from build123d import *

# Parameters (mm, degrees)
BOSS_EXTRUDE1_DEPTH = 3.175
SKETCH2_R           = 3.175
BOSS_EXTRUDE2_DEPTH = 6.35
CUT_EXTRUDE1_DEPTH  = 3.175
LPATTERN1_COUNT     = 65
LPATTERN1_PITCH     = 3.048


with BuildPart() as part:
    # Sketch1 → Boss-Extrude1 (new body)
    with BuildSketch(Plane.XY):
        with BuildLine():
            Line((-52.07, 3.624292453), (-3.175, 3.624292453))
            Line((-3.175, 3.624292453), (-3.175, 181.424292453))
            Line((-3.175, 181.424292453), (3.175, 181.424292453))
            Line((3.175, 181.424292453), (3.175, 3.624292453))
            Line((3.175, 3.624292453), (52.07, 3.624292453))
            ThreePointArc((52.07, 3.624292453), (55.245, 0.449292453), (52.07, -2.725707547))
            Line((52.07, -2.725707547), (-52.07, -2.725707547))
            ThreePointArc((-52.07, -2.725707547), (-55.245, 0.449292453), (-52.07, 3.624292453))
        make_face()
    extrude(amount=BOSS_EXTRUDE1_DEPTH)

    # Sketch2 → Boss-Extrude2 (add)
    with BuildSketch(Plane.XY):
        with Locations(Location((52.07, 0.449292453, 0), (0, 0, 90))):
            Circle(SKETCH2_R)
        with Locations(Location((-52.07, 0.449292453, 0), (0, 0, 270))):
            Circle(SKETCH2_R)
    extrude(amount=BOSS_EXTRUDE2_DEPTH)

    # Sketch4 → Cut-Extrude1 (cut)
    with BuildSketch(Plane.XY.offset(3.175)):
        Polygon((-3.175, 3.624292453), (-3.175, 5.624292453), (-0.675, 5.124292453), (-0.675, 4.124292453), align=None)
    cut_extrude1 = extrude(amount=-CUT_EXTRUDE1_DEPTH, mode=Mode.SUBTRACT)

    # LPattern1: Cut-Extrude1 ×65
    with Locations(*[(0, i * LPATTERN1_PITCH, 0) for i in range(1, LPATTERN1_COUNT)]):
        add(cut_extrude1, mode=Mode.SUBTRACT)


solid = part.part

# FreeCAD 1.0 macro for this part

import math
import FreeCAD as App
import Part
import Sketcher

V = App.Vector
Q = App.Units.Quantity


def add_polygon(sketch, points):
    """Adds a closed chain of lines whose ends are joined by coincident constraints."""
    first, n = sketch.GeometryCount, len(points)
    for a, b in zip(points, points[1:] + points[:1]):
        sketch.addGeometry(Part.LineSegment(App.Vector(*a, 0), App.Vector(*b, 0)), False)
    for i in range(n):
        sketch.addConstraint(Sketcher.Constraint("Coincident", first + i, 2, first + (i + 1) % n, 1))

doc = App.newDocument("Part")
body = doc.addObject("PartDesign::Body", "Body")

# Sketch on XY plane
sketch1 = doc.addObject("Sketcher::SketchObject", "Sketch")
body.addObject(sketch1)
sketch1.AttachmentSupport = (doc.XY_Plane, [""])
sketch1.MapMode = "FlatFace"
sketch1.addGeometry(Part.LineSegment(V(-3.175, 3.624292, 0), V(-52.07, 3.624292, 0)), False)
sketch1.addGeometry(Part.ArcOfCircle(Part.Circle(V(-52.07, 0.449292, 0), V(0, 0, 1), 3.175), math.radians(90), math.radians(270)), False)
sketch1.addGeometry(Part.LineSegment(V(-52.07, -2.725708, 0), V(52.07, -2.725708, 0)), False)
sketch1.addGeometry(Part.ArcOfCircle(Part.Circle(V(52.07, 0.449292, 0), V(0, 0, 1), 3.175), math.radians(-90), math.radians(90)), False)
sketch1.addGeometry(Part.LineSegment(V(52.07, 3.624292, 0), V(3.175, 3.624292, 0)), False)
sketch1.addGeometry(Part.LineSegment(V(3.175, 3.624292, 0), V(3.175, 181.424292, 0)), False)
sketch1.addGeometry(Part.LineSegment(V(3.175, 181.424292, 0), V(-3.175, 181.424292, 0)), False)
sketch1.addGeometry(Part.LineSegment(V(-3.175, 181.424292, 0), V(-3.175, 3.624292, 0)), False)
sketch1.addConstraint(Sketcher.Constraint("Tangent", 0, 2, 1, 1))
sketch1.addConstraint(Sketcher.Constraint("Tangent", 1, 2, 2, 1))
sketch1.addConstraint(Sketcher.Constraint("Tangent", 2, 2, 3, 1))
sketch1.addConstraint(Sketcher.Constraint("Tangent", 3, 2, 4, 1))
sketch1.addConstraint(Sketcher.Constraint("Coincident", 4, 2, 5, 1))
sketch1.addConstraint(Sketcher.Constraint("Coincident", 5, 2, 6, 1))
sketch1.addConstraint(Sketcher.Constraint("Coincident", 6, 2, 7, 1))
sketch1.addConstraint(Sketcher.Constraint("Coincident", 7, 2, 0, 1))
sketch1.addConstraint(Sketcher.Constraint("Horizontal", 0))
sketch1.addConstraint(Sketcher.Constraint("Horizontal", 2))
sketch1.addConstraint(Sketcher.Constraint("Horizontal", 4))
sketch1.addConstraint(Sketcher.Constraint("Vertical", 5))
sketch1.addConstraint(Sketcher.Constraint("Horizontal", 6))
sketch1.addConstraint(Sketcher.Constraint("Vertical", 7))
sketch1.addConstraint(Sketcher.Constraint("Equal", 1, 3))
sketch1.addConstraint(Sketcher.Constraint("Equal", 0, 4))
sketch1.addConstraint(Sketcher.Constraint("DistanceY", 5, 1, 5, 2, Q("7 in")))
sketch1.addConstraint(Sketcher.Constraint("DistanceX", 2, 1, 2, 2, Q("4.1 in")))
sketch1.addConstraint(Sketcher.Constraint("Radius", 1, Q("0.125 in")))
sketch1.addConstraint(Sketcher.Constraint("DistanceX", 6, 2, 6, 1, Q("0.25 in")))
sketch1.addConstraint(Sketcher.Constraint("DistanceX", 1, 3, -1, 1, Q("2.05 in")))
sketch1.addConstraint(Sketcher.Constraint("DistanceY", -1, 1, 1, 3, 0.449292))
pad1 = doc.addObject("PartDesign::Pad", "Pad")
body.addObject(pad1)
pad1.Profile = sketch1
pad1.Length = Q("0.125 in")

# Sketch on XY plane
sketch2 = doc.addObject("Sketcher::SketchObject", "Sketch001")
body.addObject(sketch2)
sketch2.AttachmentSupport = (doc.XY_Plane, [""])
sketch2.MapMode = "FlatFace"
sketch2.addGeometry(Part.Circle(V(52.07, 0.449292, 0), V(0, 0, 1), 3.175), False)
sketch2.addGeometry(Part.Circle(V(-52.07, 0.449292, 0), V(0, 0, 1), 3.175), False)
sketch2.addConstraint(Sketcher.Constraint("Equal", 0, 1))
sketch2.addConstraint(Sketcher.Constraint("Symmetric", 0, 3, 1, 3, -2))
sketch2.addConstraint(Sketcher.Constraint("Diameter", 0, Q("0.25 in")))
sketch2.addConstraint(Sketcher.Constraint("DistanceX", 1, 3, 0, 3, Q("4.1 in")))
sketch2.addConstraint(Sketcher.Constraint("DistanceY", -1, 1, 0, 3, 0.449292))
pad2 = doc.addObject("PartDesign::Pad", "Pad001")
body.addObject(pad2)
pad2.Profile = sketch2
pad2.Length = Q("0.25 in")

# Sketch on XY plane
sketch3 = doc.addObject("Sketcher::SketchObject", "Sketch002")
body.addObject(sketch3)
sketch3.AttachmentSupport = (doc.XY_Plane, [""])
sketch3.MapMode = "FlatFace"
sketch3.AttachmentOffset = App.Placement(V(0, 0, 0.125 * 25.4), App.Rotation())
add_polygon(sketch3, [(-3.175, 5.624292), (-3.175, 3.624292), (-0.675, 4.124292), (-0.675, 5.124292)])  # lines 0-3
sketch3.addConstraint(Sketcher.Constraint("Vertical", 0))
sketch3.addConstraint(Sketcher.Constraint("Vertical", 2))
sketch3.addConstraint(Sketcher.Constraint("Equal", 1, 3))
sketch3.addConstraint(Sketcher.Constraint("DistanceX", 0, 2, -1, 1, Q("0.125 in")))
sketch3.addConstraint(Sketcher.Constraint("DistanceY", 0, 2, 0, 1, 2.0))
sketch3.addConstraint(Sketcher.Constraint("DistanceY", 2, 1, 2, 2, 1.0))
sketch3.addConstraint(Sketcher.Constraint("DistanceX", 1, 2, -1, 1, 0.675))
sketch3.addConstraint(Sketcher.Constraint("DistanceY", -1, 1, 0, 2, 3.624292))
pocket1 = doc.addObject("PartDesign::Pocket", "Pocket")
body.addObject(pocket1)
pocket1.Profile = sketch3
pocket1.Length = Q("0.125 in")
doc.recompute()

linearpattern = doc.addObject("PartDesign::LinearPattern", "LinearPattern")
body.addObject(linearpattern)
linearpattern.Originals = [pocket1]
linearpattern.Direction = (doc.Y_Axis, [""])
linearpattern.Mode = "offset"
linearpattern.Offset = Q("0.12 in")
linearpattern.Occurrences = 65
body.Tip = linearpattern

doc.recompute()
